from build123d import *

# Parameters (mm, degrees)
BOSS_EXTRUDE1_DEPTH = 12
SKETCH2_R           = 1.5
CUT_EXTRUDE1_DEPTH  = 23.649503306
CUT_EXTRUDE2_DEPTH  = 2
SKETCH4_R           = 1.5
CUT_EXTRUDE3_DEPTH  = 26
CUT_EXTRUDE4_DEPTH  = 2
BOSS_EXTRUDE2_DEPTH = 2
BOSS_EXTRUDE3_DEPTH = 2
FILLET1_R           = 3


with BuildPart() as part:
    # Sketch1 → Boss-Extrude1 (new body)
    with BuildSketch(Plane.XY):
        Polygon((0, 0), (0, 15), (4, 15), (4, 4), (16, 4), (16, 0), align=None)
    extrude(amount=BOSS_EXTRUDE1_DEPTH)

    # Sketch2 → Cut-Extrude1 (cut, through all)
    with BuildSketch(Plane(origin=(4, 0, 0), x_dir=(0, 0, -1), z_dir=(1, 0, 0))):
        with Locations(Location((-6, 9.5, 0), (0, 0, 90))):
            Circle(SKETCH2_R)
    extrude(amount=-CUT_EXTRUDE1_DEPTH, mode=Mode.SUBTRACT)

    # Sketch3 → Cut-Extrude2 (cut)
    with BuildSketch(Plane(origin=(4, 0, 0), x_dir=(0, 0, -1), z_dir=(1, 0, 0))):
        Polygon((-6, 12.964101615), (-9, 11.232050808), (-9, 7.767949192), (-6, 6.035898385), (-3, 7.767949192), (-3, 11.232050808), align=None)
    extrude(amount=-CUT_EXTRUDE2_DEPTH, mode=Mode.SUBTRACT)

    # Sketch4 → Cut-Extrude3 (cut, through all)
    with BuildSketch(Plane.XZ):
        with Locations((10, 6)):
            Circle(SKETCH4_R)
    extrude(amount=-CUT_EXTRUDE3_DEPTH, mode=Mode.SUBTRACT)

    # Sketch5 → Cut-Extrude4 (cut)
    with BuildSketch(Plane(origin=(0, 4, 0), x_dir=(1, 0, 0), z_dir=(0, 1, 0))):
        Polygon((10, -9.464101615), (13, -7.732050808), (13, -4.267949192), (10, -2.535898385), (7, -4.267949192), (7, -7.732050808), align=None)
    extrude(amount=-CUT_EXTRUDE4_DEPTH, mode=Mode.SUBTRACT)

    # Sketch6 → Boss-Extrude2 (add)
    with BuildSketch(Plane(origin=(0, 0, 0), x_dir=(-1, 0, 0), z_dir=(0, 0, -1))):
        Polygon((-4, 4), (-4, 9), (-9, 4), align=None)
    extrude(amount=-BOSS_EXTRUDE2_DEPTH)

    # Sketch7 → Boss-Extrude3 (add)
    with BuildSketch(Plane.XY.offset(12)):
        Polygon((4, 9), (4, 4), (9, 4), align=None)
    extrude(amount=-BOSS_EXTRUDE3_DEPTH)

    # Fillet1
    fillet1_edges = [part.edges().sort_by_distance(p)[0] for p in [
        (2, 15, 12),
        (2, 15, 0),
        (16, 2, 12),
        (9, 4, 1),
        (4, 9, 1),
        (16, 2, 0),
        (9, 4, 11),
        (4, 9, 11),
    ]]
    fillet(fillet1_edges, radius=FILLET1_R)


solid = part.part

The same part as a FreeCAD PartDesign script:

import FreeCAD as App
import Part
import Sketcher
Q = App.Units.Quantity


def edges_at(feature, points):
    """Names of the edges that pass closest to the given points."""
    edges = feature.Shape.Edges
    near = lambda p: min(range(len(edges)), key=lambda i: edges[i].distToShape(Part.Vertex(*p))[0])
    return sorted({f"Edge{near(p) + 1}" for p in points})

doc = App.newDocument("Part")
params = doc.addObject("Spreadsheet::Sheet", "Params")
for row, (alias, value) in enumerate([
    ("sketch1_width", "16 mm"),
    ("sketch1_width2", "12 mm"),
    ("sketch1_height", "15 mm"),
    ("pad1_length", "12 mm"),
    ("sketch2_diameter", "3 mm"),
    ("pocket2_length", "2 mm"),
    ("sketch4_diameter", "3 mm"),
    ("pocket4_length", "2 mm"),
    ("sketch6_width", "5 mm"),
    ("pad2_length", "2 mm"),
    ("sketch7_width", "5 mm"),
    ("pad3_length", "2 mm"),
    ("fillet_radius", "3 mm"),
], start=1):
    params.set(f"A{row}", alias)
    params.set(f"B{row}", "=" + value)
    params.setAlias(f"B{row}", alias)

body = doc.addObject("PartDesign::Body", "Body")

sketch1 = body.newObject("Sketcher::SketchObject", "Sketch")
sketch1.AttachmentSupport = (doc.getObject("XY_Plane"), [""])
sketch1.MapMode = "FlatFace"
sketch1.addGeometry([
    Part.LineSegment(App.Vector(0, 15, 0), App.Vector(0, 0, 0)),
    Part.LineSegment(App.Vector(0, 0, 0), App.Vector(16, 0, 0)),
    Part.LineSegment(App.Vector(16, 0, 0), App.Vector(16, 4, 0)),
    Part.LineSegment(App.Vector(16, 4, 0), App.Vector(4, 4, 0)),
    Part.LineSegment(App.Vector(4, 4, 0), App.Vector(4, 15, 0)),
    Part.LineSegment(App.Vector(4, 15, 0), App.Vector(0, 15, 0)),
], False)
sketch1.addConstraint([
    Sketcher.Constraint("Coincident", 0, 2, 1, 1),
    Sketcher.Constraint("Coincident", 1, 2, 2, 1),
    Sketcher.Constraint("Coincident", 2, 2, 3, 1),
    Sketcher.Constraint("Coincident", 3, 2, 4, 1),
    Sketcher.Constraint("Coincident", 4, 2, 5, 1),
    Sketcher.Constraint("Coincident", 5, 2, 0, 1),
    Sketcher.Constraint("Vertical", 0),
    Sketcher.Constraint("Horizontal", 1),
    Sketcher.Constraint("Vertical", 2),
    Sketcher.Constraint("Horizontal", 3),
    Sketcher.Constraint("Vertical", 4),
    Sketcher.Constraint("Horizontal", 5),
    Sketcher.Constraint("Coincident", 0, 2, -1, 1),
    Sketcher.Constraint("Equal", 5, 2),
    Sketcher.Constraint("DistanceX", 1, 1, 1, 2, Q("16 mm")),
    Sketcher.Constraint("DistanceX", 3, 2, 3, 1, Q("12 mm")),
    Sketcher.Constraint("DistanceY", 0, 2, 0, 1, Q("15 mm")),
])
sketch1.setExpression("Constraints[14]", "Params.sketch1_width")
sketch1.setExpression("Constraints[15]", "Params.sketch1_width2")
sketch1.setExpression("Constraints[16]", "Params.sketch1_height")
pad1 = body.newObject("PartDesign::Pad", "Pad")
pad1.Profile = sketch1
pad1.setExpression("Length", "Params.pad1_length")

sketch2 = body.newObject("Sketcher::SketchObject", "Sketch001")
sketch2.AttachmentSupport = (doc.getObject("YZ_Plane"), [""])
sketch2.MapMode = "FlatFace"
sketch2.AttachmentOffset = App.Placement(App.Vector(0, 0, 4), App.Rotation())
sketch2.addGeometry(Part.Circle(App.Vector(9.5, 6, 0), App.Vector(0, 0, 1), 1.5), False)
sketch2.addConstraint([
    Sketcher.Constraint("Diameter", 0, Q("3 mm")),
    Sketcher.Constraint("DistanceY", -1, 1, 0, 3, Q("6 mm")),
    Sketcher.Constraint("DistanceX", -1, 1, 0, 3, Q("9.5 mm")),
])
sketch2.setExpression("Constraints[0]", "Params.sketch2_diameter")
pocket1 = body.newObject("PartDesign::Pocket", "Pocket")
pocket1.Profile = sketch2
pocket1.Type = "ThroughAll"

sketch3 = body.newObject("Sketcher::SketchObject", "Sketch002")
sketch3.AttachmentSupport = (doc.getObject("YZ_Plane"), [""])
sketch3.MapMode = "FlatFace"
sketch3.AttachmentOffset = App.Placement(App.Vector(0, 0, 4), App.Rotation())
sketch3.addGeometry([
    Part.LineSegment(App.Vector(13, 6, 0), App.Vector(11.2, 9, 0)),
    Part.LineSegment(App.Vector(11.2, 9, 0), App.Vector(7.8, 9, 0)),
    Part.LineSegment(App.Vector(7.8, 9, 0), App.Vector(6, 6, 0)),
    Part.LineSegment(App.Vector(6, 6, 0), App.Vector(7.8, 3, 0)),
    Part.LineSegment(App.Vector(7.8, 3, 0), App.Vector(11.2, 3, 0)),
    Part.LineSegment(App.Vector(11.2, 3, 0), App.Vector(13, 6, 0)),
], False)
sketch3.addConstraint([
    Sketcher.Constraint("Coincident", 0, 2, 1, 1),
    Sketcher.Constraint("Coincident", 1, 2, 2, 1),
    Sketcher.Constraint("Coincident", 2, 2, 3, 1),
    Sketcher.Constraint("Coincident", 3, 2, 4, 1),
    Sketcher.Constraint("Coincident", 4, 2, 5, 1),
    Sketcher.Constraint("Coincident", 5, 2, 0, 1),
    Sketcher.Constraint("Horizontal", 1),
    Sketcher.Constraint("Horizontal", 4),
    Sketcher.Constraint("Parallel", 0, 3),
    Sketcher.Constraint("Parallel", 2, 5),
    Sketcher.Constraint("Horizontal", 2, 2, 5, 2),
    Sketcher.Constraint("Vertical", 1, 2, 3, 2),
    Sketcher.Constraint("Vertical", 0, 2, 4, 2),
    Sketcher.Constraint("Angle", 0, Q("120 deg")),
    Sketcher.Constraint("DistanceY", -1, 1, 0, 2, Q("9 mm")),
    Sketcher.Constraint("DistanceY", -1, 1, 2, 2, Q("6 mm")),
    Sketcher.Constraint("DistanceX", 1, 2, 1, 1, Q("3.464102 mm")),
    Sketcher.Constraint("DistanceX", -1, 1, 2, 2, Q("6.035898 mm")),
])
pocket2 = body.newObject("PartDesign::Pocket", "Pocket001")
pocket2.Profile = sketch3
pocket2.setExpression("Length", "Params.pocket2_length")

sketch4 = body.newObject("Sketcher::SketchObject", "Sketch003")
sketch4.AttachmentSupport = (doc.getObject("XZ_Plane"), [""])
sketch4.MapMode = "FlatFace"
sketch4.addGeometry(Part.Circle(App.Vector(10, 6, 0), App.Vector(0, 0, 1), 1.5), False)
sketch4.addConstraint([
    Sketcher.Constraint("Diameter", 0, Q("3 mm")),
    Sketcher.Constraint("DistanceX", -1, 1, 0, 3, Q("10 mm")),
    Sketcher.Constraint("DistanceY", -1, 1, 0, 3, Q("6 mm")),
])
sketch4.setExpression("Constraints[0]", "Params.sketch4_diameter")
pocket3 = body.newObject("PartDesign::Pocket", "Pocket002")
pocket3.Profile = sketch4
pocket3.Type = "ThroughAll"

sketch5 = body.newObject("Sketcher::SketchObject", "Sketch004")
sketch5.AttachmentSupport = (doc.getObject("XZ_Plane"), [""])
sketch5.MapMode = "FlatFace"
sketch5.AttachmentOffset = App.Placement(App.Vector(0, 0, -4), App.Rotation())
sketch5.addGeometry([
    Part.LineSegment(App.Vector(10, 9.5, 0), App.Vector(13, 7.7, 0)),
    Part.LineSegment(App.Vector(13, 7.7, 0), App.Vector(13, 4.3, 0)),
    Part.LineSegment(App.Vector(13, 4.3, 0), App.Vector(10, 2.5, 0)),
    Part.LineSegment(App.Vector(10, 2.5, 0), App.Vector(7, 4.3, 0)),
    Part.LineSegment(App.Vector(7, 4.3, 0), App.Vector(7, 7.7, 0)),
    Part.LineSegment(App.Vector(7, 7.7, 0), App.Vector(10, 9.5, 0)),
], False)
sketch5.addConstraint([
    Sketcher.Constraint("Coincident", 0, 2, 1, 1),
    Sketcher.Constraint("Coincident", 1, 2, 2, 1),
    Sketcher.Constraint("Coincident", 2, 2, 3, 1),
    Sketcher.Constraint("Coincident", 3, 2, 4, 1),
    Sketcher.Constraint("Coincident", 4, 2, 5, 1),
    Sketcher.Constraint("Coincident", 5, 2, 0, 1),
    Sketcher.Constraint("Vertical", 1),
    Sketcher.Constraint("Vertical", 4),
    Sketcher.Constraint("Parallel", 0, 3),
    Sketcher.Constraint("Parallel", 2, 5),
    Sketcher.Constraint("Horizontal", 1, 2, 3, 2),
    Sketcher.Constraint("Horizontal", 0, 2, 4, 2),
    Sketcher.Constraint("Vertical", 2, 2, 5, 2),
    Sketcher.Constraint("Angle", 0, Q("-30 deg")),
    Sketcher.Constraint("DistanceX", -1, 1, 0, 2, Q("13 mm")),
    Sketcher.Constraint("DistanceX", -1, 1, 2, 2, Q("10 mm")),
    Sketcher.Constraint("DistanceY", 1, 2, 1, 1, Q("3.464102 mm")),
    Sketcher.Constraint("DistanceY", -1, 1, 2, 2, Q("2.535898 mm")),
])
pocket4 = body.newObject("PartDesign::Pocket", "Pocket003")
pocket4.Profile = sketch5
pocket4.setExpression("Length", "Params.pocket4_length")
pocket4.Reversed = True

sketch6 = body.newObject("Sketcher::SketchObject", "Sketch005")
sketch6.AttachmentSupport = (doc.getObject("XY_Plane"), [""])
sketch6.MapMode = "FlatFace"
sketch6.addGeometry([
    Part.LineSegment(App.Vector(4, 4, 0), App.Vector(4, 9, 0)),
    Part.LineSegment(App.Vector(4, 9, 0), App.Vector(9, 4, 0)),
    Part.LineSegment(App.Vector(9, 4, 0), App.Vector(4, 4, 0)),
], False)
sketch6.addConstraint([
    Sketcher.Constraint("Coincident", 0, 2, 1, 1),
    Sketcher.Constraint("Coincident", 1, 2, 2, 1),
    Sketcher.Constraint("Coincident", 2, 2, 0, 1),
    Sketcher.Constraint("Vertical", 0),
    Sketcher.Constraint("Horizontal", 2),
    Sketcher.Constraint("Equal", 2, 0),
    Sketcher.Constraint("DistanceX", 2, 2, 2, 1, Q("5 mm")),
    Sketcher.Constraint("DistanceX", -1, 1, 0, 2, Q("4 mm")),
    Sketcher.Constraint("DistanceY", -1, 1, 0, 2, Q("9 mm")),
])
sketch6.setExpression("Constraints[6]", "Params.sketch6_width")
pad2 = body.newObject("PartDesign::Pad", "Pad001")
pad2.Profile = sketch6
pad2.setExpression("Length", "Params.pad2_length")

sketch7 = body.newObject("Sketcher::SketchObject", "Sketch006")
sketch7.AttachmentSupport = (doc.getObject("XY_Plane"), [""])
sketch7.MapMode = "FlatFace"
sketch7.AttachmentOffset = App.Placement(App.Vector(0, 0, 12), App.Rotation())
sketch7.addGeometry([
    Part.LineSegment(App.Vector(4, 9, 0), App.Vector(4, 4, 0)),
    Part.LineSegment(App.Vector(4, 4, 0), App.Vector(9, 4, 0)),
    Part.LineSegment(App.Vector(9, 4, 0), App.Vector(4, 9, 0)),
], False)
sketch7.addConstraint([
    Sketcher.Constraint("Coincident", 0, 2, 1, 1),
    Sketcher.Constraint("Coincident", 1, 2, 2, 1),
    Sketcher.Constraint("Coincident", 2, 2, 0, 1),
    Sketcher.Constraint("Vertical", 0),
    Sketcher.Constraint("Horizontal", 1),
    Sketcher.Constraint("Equal", 1, 0),
    Sketcher.Constraint("DistanceX", 1, 1, 1, 2, Q("5 mm")),
    Sketcher.Constraint("DistanceX", -1, 1, 0, 2, Q("4 mm")),
    Sketcher.Constraint("DistanceY", -1, 1, 0, 2, Q("4 mm")),
])
sketch7.setExpression("Constraints[6]", "Params.sketch7_width")
pad3 = body.newObject("PartDesign::Pad", "Pad002")
pad3.Profile = sketch7
pad3.setExpression("Length", "Params.pad3_length")
pad3.Reversed = True
doc.recompute()

fillet = body.newObject("PartDesign::Fillet", "Fillet")
fillet.Base = (pad3, edges_at(pad3, [
    (2, 15, 12),
    (2, 15, 0),
    (16, 2, 12),
    (9, 4, 1),
    (4, 9, 1),
    (16, 2, 0),
    (9, 4, 11),
    (4, 9, 11),
]))
fillet.setExpression("Radius", "Params.fillet_radius")

doc.recompute()
